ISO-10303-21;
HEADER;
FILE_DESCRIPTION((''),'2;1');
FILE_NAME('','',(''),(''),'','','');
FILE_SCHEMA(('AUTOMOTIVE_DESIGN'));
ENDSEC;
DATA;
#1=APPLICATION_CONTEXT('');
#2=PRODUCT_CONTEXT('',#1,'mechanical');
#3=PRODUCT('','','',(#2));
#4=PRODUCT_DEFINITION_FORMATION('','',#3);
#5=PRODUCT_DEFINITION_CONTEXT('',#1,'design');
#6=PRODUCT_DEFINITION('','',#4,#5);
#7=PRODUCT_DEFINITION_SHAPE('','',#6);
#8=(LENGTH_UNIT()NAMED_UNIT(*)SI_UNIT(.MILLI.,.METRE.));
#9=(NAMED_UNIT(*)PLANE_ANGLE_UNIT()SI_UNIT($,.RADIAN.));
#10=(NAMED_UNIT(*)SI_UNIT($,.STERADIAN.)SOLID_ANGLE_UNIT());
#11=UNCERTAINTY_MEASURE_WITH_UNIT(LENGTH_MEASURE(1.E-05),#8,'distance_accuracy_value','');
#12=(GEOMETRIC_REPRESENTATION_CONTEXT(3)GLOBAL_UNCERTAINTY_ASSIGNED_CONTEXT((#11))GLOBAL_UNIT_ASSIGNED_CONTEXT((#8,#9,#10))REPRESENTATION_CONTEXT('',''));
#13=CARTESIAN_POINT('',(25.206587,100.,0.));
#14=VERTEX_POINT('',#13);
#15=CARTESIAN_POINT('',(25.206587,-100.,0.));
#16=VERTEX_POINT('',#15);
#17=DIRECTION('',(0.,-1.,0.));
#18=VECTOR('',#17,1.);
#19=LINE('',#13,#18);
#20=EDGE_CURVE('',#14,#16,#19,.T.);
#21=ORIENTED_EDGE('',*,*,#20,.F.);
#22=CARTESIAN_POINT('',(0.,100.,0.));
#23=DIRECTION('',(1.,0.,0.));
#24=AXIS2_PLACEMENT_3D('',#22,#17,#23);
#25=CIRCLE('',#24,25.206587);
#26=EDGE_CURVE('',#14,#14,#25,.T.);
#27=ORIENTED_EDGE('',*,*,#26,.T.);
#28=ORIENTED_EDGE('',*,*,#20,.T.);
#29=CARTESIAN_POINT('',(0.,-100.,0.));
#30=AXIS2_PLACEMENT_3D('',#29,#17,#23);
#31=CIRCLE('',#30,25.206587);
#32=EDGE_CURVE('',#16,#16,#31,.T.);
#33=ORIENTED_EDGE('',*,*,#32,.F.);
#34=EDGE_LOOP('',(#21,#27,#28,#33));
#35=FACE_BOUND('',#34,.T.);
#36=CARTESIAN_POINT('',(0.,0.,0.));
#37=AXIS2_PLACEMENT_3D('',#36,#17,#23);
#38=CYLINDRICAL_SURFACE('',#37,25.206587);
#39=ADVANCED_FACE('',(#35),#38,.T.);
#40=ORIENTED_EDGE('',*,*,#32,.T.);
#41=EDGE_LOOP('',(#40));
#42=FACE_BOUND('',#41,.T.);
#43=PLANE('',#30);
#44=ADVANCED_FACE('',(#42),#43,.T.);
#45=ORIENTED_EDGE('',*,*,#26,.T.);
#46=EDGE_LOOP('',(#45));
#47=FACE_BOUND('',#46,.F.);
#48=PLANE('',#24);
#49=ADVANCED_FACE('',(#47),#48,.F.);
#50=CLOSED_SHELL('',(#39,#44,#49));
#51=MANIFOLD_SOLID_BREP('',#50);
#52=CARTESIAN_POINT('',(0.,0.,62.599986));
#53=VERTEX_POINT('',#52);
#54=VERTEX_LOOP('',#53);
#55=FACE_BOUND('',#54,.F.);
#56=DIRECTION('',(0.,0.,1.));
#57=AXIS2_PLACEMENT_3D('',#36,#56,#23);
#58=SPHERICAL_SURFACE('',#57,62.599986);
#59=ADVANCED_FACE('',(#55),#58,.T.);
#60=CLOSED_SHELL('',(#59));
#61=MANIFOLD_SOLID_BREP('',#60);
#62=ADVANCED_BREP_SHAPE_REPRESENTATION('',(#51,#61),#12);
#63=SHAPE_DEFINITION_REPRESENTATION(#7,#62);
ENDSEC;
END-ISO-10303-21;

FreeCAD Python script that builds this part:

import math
import FreeCAD as App
import Part
import Sketcher

doc = App.newDocument("Part")
body = doc.addObject("PartDesign::Body", "Body")

# Sketch on XZ plane
sketch1 = doc.addObject("Sketcher::SketchObject", "Sketch")
body.addObject(sketch1)
sketch1.AttachmentSupport = (doc.XZ_Plane, [""])
sketch1.MapMode = "FlatFace"
sketch1.addGeometry([
    Part.ArcOfCircle(Part.Circle(App.Vector(0, 0, 0), App.Vector(0, 0, 1), 63), math.radians(-90), math.radians(90)),
    Part.LineSegment(App.Vector(0, 63, 0), App.Vector(0, -63, 0)),
], False)
sketch1.addConstraint([
    Sketcher.Constraint("Coincident", 0, 1, 1, 2),
    Sketcher.Constraint("Coincident", 1, 1, 0, 2),
    Sketcher.Constraint("Vertical", 1),
    Sketcher.Constraint("Coincident", 0, 3, -1, 1),
    Sketcher.Constraint("PointOnObject", 0, 1, -2),
    Sketcher.Constraint("Radius", 0, 62.599986),
])
revolution = doc.addObject("PartDesign::Revolution", "Revolution")
body.addObject(revolution)
revolution.Profile = sketch1
revolution.ReferenceAxis = (sketch1, ["V_Axis"])
revolution.Angle = 360
body2 = doc.addObject("PartDesign::Body", "Body001")

# Sketch on XZ plane
sketch2 = doc.addObject("Sketcher::SketchObject", "Sketch001")
body2.addObject(sketch2)
sketch2.AttachmentSupport = (doc.getObject("XZ_Plane001"), [""])
sketch2.MapMode = "FlatFace"
sketch2.addGeometry(Part.Circle(App.Vector(0, 0, 0), App.Vector(0, 0, 1), 25), False)
sketch2.addConstraint([
    Sketcher.Constraint("Coincident", 0, 3, -1, 1),
    Sketcher.Constraint("Diameter", 0, 50.413174),
])
pad1 = doc.addObject("PartDesign::Pad", "Pad")
body2.addObject(pad1)
pad1.Profile = sketch2
pad1.Length = 200
pad1.Midplane = True

doc.recompute()
